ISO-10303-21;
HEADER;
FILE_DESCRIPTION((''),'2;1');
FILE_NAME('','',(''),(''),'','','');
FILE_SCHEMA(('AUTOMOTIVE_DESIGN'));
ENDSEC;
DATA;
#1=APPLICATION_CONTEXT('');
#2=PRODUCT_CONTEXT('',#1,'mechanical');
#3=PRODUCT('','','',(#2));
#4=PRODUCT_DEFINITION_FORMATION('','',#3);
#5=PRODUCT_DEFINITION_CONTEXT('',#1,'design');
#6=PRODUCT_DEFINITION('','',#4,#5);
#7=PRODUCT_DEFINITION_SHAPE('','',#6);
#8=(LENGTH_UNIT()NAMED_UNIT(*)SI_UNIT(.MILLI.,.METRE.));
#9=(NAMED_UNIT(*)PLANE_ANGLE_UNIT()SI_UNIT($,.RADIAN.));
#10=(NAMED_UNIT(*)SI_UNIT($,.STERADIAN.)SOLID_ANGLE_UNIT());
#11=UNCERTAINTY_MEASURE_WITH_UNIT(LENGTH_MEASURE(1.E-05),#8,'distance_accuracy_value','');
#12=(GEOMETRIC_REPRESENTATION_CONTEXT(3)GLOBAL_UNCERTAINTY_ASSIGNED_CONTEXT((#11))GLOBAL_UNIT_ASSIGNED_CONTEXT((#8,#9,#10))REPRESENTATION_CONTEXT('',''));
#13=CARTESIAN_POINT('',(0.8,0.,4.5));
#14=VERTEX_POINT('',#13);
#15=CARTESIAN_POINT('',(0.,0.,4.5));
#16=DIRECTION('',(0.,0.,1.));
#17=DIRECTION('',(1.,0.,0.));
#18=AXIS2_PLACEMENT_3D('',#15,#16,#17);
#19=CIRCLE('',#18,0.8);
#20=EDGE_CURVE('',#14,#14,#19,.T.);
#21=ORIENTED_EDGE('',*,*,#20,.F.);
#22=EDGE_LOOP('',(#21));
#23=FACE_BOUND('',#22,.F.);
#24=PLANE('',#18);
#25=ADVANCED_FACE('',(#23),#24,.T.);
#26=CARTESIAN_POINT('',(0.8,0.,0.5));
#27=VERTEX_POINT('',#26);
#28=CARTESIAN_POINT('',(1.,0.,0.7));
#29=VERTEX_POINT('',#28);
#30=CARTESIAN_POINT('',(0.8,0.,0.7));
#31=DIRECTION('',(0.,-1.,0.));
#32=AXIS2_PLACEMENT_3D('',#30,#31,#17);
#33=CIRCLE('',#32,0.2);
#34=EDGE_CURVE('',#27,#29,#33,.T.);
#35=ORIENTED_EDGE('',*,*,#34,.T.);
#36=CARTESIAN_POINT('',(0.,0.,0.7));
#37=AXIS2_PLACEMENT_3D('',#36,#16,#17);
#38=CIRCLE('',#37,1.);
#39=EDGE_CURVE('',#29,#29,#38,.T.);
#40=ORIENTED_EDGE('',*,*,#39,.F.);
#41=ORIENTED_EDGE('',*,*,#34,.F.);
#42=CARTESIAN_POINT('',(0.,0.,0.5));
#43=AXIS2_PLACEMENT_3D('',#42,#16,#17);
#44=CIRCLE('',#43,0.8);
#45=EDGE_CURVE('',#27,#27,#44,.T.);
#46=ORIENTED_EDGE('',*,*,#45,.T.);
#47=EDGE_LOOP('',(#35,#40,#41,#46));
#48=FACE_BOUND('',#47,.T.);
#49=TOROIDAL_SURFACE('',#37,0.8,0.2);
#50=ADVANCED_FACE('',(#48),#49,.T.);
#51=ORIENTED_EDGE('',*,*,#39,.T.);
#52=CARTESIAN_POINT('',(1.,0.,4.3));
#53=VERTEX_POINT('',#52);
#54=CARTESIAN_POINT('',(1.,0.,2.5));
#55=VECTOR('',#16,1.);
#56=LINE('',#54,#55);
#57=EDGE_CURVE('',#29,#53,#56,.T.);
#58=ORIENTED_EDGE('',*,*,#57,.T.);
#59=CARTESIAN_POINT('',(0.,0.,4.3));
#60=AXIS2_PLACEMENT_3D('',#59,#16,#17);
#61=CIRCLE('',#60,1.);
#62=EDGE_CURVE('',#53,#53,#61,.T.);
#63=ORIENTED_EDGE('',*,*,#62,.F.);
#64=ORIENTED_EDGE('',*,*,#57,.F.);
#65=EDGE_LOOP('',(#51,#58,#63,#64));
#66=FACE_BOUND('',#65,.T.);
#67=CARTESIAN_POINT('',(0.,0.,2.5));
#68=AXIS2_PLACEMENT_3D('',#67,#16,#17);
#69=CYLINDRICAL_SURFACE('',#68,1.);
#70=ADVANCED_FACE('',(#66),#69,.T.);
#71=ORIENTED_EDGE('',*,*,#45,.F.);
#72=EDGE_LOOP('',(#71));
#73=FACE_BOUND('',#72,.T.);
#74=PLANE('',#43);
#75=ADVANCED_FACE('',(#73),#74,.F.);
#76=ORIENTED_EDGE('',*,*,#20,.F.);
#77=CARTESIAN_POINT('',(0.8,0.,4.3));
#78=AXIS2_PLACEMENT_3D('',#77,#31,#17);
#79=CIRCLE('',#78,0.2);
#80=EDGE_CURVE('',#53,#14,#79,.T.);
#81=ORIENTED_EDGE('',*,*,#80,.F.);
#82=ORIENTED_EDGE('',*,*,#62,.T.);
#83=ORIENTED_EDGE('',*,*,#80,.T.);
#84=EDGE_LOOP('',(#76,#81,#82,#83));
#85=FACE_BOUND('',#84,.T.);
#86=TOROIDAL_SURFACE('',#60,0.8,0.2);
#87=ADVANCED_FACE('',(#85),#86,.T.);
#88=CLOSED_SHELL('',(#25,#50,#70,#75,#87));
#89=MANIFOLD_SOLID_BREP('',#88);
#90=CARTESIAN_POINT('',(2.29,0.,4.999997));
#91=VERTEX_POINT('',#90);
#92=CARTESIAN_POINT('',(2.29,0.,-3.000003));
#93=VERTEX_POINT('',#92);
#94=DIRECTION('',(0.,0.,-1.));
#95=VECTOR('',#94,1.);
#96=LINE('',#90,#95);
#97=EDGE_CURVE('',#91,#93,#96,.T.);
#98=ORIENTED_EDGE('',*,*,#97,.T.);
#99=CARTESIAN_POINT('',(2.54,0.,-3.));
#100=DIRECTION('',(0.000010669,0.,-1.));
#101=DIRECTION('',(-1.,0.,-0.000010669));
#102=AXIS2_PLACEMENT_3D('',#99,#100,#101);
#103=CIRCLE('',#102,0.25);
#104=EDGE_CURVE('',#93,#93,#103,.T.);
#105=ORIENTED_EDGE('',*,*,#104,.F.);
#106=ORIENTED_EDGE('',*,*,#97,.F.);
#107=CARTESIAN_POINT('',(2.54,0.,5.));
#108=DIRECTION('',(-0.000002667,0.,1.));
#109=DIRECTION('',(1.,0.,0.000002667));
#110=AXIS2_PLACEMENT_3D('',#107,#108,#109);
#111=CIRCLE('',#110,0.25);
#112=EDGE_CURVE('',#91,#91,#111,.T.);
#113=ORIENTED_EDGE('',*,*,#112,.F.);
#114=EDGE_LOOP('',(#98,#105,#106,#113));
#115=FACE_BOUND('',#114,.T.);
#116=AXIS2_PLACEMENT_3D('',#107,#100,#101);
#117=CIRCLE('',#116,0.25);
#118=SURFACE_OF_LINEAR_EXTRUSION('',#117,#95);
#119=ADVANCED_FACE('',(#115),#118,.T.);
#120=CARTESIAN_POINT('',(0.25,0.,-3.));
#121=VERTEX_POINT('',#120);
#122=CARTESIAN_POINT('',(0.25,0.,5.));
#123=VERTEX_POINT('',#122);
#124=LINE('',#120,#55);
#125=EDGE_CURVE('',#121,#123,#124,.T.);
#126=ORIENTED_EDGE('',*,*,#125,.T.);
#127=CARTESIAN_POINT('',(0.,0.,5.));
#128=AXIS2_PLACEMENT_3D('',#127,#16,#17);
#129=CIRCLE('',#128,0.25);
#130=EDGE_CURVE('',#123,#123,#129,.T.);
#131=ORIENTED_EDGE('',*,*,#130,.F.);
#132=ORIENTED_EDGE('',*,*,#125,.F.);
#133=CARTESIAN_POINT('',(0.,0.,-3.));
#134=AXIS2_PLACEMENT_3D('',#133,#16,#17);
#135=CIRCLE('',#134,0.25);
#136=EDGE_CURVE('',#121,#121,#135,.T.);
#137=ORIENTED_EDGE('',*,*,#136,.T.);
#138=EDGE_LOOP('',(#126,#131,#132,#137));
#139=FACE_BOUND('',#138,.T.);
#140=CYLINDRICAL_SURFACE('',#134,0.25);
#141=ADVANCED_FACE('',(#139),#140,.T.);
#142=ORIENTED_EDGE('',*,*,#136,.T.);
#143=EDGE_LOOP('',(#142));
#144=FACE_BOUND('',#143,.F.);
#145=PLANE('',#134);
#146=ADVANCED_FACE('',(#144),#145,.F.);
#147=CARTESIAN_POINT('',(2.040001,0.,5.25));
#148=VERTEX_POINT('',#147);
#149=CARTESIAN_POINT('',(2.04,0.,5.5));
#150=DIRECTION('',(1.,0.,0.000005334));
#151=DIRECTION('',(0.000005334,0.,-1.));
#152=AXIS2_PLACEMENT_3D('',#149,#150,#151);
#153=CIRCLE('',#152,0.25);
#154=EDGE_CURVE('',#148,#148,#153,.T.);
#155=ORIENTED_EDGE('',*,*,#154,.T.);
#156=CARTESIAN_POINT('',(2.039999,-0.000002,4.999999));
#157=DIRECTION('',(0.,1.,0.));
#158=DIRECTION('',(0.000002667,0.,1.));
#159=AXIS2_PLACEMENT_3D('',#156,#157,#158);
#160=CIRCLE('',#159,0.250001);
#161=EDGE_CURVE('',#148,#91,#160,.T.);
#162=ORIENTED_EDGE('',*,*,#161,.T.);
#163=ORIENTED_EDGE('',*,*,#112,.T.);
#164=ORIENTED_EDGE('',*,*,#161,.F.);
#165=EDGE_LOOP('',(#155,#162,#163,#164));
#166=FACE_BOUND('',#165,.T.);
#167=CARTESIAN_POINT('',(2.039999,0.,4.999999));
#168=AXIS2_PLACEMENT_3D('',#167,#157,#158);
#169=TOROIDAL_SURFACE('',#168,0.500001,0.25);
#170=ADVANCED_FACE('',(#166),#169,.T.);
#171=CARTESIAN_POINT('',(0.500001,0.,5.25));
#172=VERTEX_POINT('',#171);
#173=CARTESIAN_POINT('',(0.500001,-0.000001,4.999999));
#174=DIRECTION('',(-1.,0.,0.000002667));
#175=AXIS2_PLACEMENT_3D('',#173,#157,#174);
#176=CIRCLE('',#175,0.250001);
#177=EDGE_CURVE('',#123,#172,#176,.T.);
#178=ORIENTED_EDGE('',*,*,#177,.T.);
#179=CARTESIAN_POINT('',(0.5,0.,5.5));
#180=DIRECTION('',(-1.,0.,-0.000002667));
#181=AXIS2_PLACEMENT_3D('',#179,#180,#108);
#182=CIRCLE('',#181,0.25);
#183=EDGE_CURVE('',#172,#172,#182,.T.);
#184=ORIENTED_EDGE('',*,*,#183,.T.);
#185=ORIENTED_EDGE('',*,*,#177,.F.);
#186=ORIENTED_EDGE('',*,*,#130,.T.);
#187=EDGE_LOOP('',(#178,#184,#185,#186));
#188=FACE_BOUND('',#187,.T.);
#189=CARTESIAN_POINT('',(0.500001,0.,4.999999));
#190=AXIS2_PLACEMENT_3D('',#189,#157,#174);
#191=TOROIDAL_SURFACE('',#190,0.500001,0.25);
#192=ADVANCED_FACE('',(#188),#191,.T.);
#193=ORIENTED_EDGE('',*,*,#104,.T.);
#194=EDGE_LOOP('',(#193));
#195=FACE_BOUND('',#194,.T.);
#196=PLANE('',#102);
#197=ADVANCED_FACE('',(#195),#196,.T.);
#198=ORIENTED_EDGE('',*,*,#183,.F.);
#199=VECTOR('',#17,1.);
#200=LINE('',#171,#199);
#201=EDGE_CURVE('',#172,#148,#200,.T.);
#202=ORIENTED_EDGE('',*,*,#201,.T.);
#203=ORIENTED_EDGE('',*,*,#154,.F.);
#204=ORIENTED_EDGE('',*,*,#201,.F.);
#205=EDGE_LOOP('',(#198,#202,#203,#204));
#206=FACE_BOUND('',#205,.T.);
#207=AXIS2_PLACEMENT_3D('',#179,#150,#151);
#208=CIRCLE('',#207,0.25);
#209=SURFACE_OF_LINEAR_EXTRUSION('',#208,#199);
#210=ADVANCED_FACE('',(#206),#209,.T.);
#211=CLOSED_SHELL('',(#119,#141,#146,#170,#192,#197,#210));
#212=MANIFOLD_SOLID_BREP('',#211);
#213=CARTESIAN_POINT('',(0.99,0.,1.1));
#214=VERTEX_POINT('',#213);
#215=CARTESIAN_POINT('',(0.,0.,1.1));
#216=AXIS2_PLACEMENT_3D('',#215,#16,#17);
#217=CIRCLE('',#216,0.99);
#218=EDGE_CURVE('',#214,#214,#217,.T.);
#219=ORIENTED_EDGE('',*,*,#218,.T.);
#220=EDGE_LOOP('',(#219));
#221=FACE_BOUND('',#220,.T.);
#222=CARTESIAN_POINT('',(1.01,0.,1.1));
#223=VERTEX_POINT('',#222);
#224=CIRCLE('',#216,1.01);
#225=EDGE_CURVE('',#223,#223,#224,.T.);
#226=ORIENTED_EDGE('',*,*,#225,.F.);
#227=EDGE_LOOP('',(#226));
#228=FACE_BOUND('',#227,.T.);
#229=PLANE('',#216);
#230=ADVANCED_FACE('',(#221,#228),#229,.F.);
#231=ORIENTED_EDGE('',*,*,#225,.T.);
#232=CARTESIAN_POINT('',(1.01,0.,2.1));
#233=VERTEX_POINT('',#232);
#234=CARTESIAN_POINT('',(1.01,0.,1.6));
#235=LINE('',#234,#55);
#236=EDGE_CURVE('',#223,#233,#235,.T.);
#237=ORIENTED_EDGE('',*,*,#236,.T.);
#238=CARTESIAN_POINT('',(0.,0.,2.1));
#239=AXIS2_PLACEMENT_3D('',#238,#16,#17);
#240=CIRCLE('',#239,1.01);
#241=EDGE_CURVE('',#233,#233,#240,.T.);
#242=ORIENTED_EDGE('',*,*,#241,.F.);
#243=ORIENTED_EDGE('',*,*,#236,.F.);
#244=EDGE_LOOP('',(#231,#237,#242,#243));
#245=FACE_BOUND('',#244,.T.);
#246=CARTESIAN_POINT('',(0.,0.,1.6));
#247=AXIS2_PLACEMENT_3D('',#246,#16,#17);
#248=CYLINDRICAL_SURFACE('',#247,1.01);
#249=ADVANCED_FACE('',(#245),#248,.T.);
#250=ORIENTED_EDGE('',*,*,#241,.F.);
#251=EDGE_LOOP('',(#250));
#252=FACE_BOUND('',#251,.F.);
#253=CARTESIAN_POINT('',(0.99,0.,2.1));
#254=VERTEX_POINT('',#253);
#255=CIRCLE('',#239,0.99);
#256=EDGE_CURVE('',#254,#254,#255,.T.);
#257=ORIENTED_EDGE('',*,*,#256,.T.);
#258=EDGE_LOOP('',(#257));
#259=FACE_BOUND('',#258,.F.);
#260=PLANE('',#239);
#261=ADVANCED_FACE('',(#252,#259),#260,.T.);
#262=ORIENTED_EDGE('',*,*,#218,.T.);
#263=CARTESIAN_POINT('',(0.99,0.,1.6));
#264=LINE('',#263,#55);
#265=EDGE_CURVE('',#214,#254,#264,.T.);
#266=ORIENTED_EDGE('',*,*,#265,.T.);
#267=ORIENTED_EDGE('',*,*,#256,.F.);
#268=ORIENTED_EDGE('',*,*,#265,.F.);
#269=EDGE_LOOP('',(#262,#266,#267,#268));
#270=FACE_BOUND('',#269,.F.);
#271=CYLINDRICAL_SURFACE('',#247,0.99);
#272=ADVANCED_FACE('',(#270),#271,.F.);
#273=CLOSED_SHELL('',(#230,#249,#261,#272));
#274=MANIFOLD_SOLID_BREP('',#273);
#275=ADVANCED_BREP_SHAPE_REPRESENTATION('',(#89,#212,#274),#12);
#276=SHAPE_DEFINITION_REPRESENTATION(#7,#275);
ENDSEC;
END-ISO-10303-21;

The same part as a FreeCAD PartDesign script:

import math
import FreeCAD as App
import Part
import Sketcher

V = App.Vector
Q = App.Units.Quantity


def edges_at(feature, points):
    """Names of the edges that pass closest to the given points."""
    edges = feature.Shape.Edges
    near = lambda p: min(range(len(edges)), key=lambda i: edges[i].distToShape(Part.Vertex(*p))[0])
    return sorted({f"Edge{near(p) + 1}" for p in points})

doc = App.newDocument("Part")
params = doc.addObject("Spreadsheet::Sheet", "Params")
for row, (alias, value) in enumerate([
    ("sketch1_diameter", "0.5 mm"),
    ("sketch2_radius", "0.500001 mm"),
    ("sketch2_height", "8 mm"),
    ("sketch2_width", "1.54 mm"),
    ("sketch3_height", "1 mm"),
    ("sketch3_width", "0.02 mm"),
    ("revolution_angle", "360 deg"),
    ("sketch4_width", "1 mm"),
    ("sketch4_height", "4 mm"),
    ("revolution2_angle", "360 deg"),
    ("fillet_radius", "0.2 mm"),
], start=1):
    params.set(f"A{row}", alias)
    params.set(f"B{row}", "=" + value)
    params.setAlias(f"B{row}", alias)

body = doc.addObject("PartDesign::Body", "Body")

# Sketch on XY plane
sketch1 = doc.addObject("Sketcher::SketchObject", "Sketch")
body.addObject(sketch1)
sketch1.AttachmentSupport = (doc.XY_Plane, [""])
sketch1.MapMode = "FlatFace"
sketch1.addGeometry(Part.Circle(V(0, 0, 0), V(0, 0, 1), 0.25), False)
sketch1.addConstraint(Sketcher.Constraint("Coincident", 0, 3, -1, 1))
sketch1.addConstraint(Sketcher.Constraint("Diameter", 0, Q("0.5 mm")))
sketch1.setExpression("Constraints[1]", "Params.sketch1_diameter")

# Sketch on XZ plane
sketch2 = doc.addObject("Sketcher::SketchObject", "Sketch001")
body.addObject(sketch2)
sketch2.AttachmentSupport = (doc.XZ_Plane, [""])
sketch2.MapMode = "FlatFace"
sketch2.addGeometry(Part.LineSegment(V(0, -3, 0), V(0, 5, 0)), False)
sketch2.addGeometry(Part.ArcOfCircle(Part.Circle(V(0.500001, 4.999999, 0), V(0, 0, 1), 0.500001), math.radians(90.000153), math.radians(179.999847)), False)
sketch2.addGeometry(Part.LineSegment(V(0.5, 5.5, 0), V(2.04, 5.5, 0)), False)
sketch2.addGeometry(Part.ArcOfCircle(Part.Circle(V(2.039999, 4.999999, 0), V(0, 0, 1), 0.500001), math.radians(0.000153), math.radians(89.999847)), False)
sketch2.addGeometry(Part.LineSegment(V(2.54, 5, 0), V(2.54, -3, 0)), False)
sketch2.addConstraint(Sketcher.Constraint("Coincident", 0, 2, 1, 2))
sketch2.addConstraint(Sketcher.Constraint("Coincident", 1, 1, 2, 1))
sketch2.addConstraint(Sketcher.Constraint("Coincident", 2, 2, 3, 2))
sketch2.addConstraint(Sketcher.Constraint("Coincident", 3, 1, 4, 1))
sketch2.addConstraint(Sketcher.Constraint("Vertical", 0))
sketch2.addConstraint(Sketcher.Constraint("Horizontal", 2))
sketch2.addConstraint(Sketcher.Constraint("Vertical", 4))
sketch2.addConstraint(Sketcher.Constraint("Equal", 1, 3))
sketch2.addConstraint(Sketcher.Constraint("PointOnObject", 0, 1, -2))
sketch2.addConstraint(Sketcher.Constraint("Horizontal", 3, 3, 0, 2))
sketch2.addConstraint(Sketcher.Constraint("Horizontal", 0, 2, 3, 1))
sketch2.addConstraint(Sketcher.Constraint("Horizontal", 0, 1, 4, 2))
sketch2.addConstraint(Sketcher.Constraint("Vertical", 3, 3, 2, 2))
sketch2.addConstraint(Sketcher.Constraint("Radius", 1, Q("0.500001 mm")))
sketch2.addConstraint(Sketcher.Constraint("DistanceY", 0, 1, 0, 2, Q("8 mm")))
sketch2.addConstraint(Sketcher.Constraint("DistanceY", -1, 1, 1, 3, Q("4.999999 mm")))
sketch2.addConstraint(Sketcher.Constraint("DistanceX", 2, 1, 2, 2, Q("1.54 mm")))
sketch2.addConstraint(Sketcher.Constraint("DistanceX", -1, 1, 1, 1, Q("0.5 mm")))
sketch2.setExpression("Constraints[13]", "Params.sketch2_radius")
sketch2.setExpression("Constraints[14]", "Params.sketch2_height")
sketch2.setExpression("Constraints[16]", "Params.sketch2_width")
doc.recompute()

additivepipe = doc.addObject("PartDesign::AdditivePipe", "AdditivePipe")
body.addObject(additivepipe)
additivepipe.Profile = sketch1
additivepipe.Spine = (sketch2, ["Edge1", "Edge2", "Edge3", "Edge4", "Edge5"])
body2 = doc.addObject("PartDesign::Body", "Body001")

# Sketch on XZ plane
sketch3 = doc.addObject("Sketcher::SketchObject", "Sketch002")
body2.addObject(sketch3)
sketch3.AttachmentSupport = (doc.getObject("XZ_Plane001"), [""])
sketch3.MapMode = "FlatFace"
sketch3.addGeometry(Part.LineSegment(V(0.99, 2.1, 0), V(0.99, 1.1, 0)), False)
sketch3.addGeometry(Part.LineSegment(V(0.99, 1.1, 0), V(1.01, 1.1, 0)), False)
sketch3.addGeometry(Part.LineSegment(V(1.01, 1.1, 0), V(1.01, 2.1, 0)), False)
sketch3.addGeometry(Part.LineSegment(V(1.01, 2.1, 0), V(0.99, 2.1, 0)), False)
sketch3.addConstraint(Sketcher.Constraint("Coincident", 0, 2, 1, 1))
sketch3.addConstraint(Sketcher.Constraint("Coincident", 1, 2, 2, 1))
sketch3.addConstraint(Sketcher.Constraint("Coincident", 2, 2, 3, 1))
sketch3.addConstraint(Sketcher.Constraint("Coincident", 3, 2, 0, 1))
sketch3.addConstraint(Sketcher.Constraint("Vertical", 0))
sketch3.addConstraint(Sketcher.Constraint("Horizontal", 1))
sketch3.addConstraint(Sketcher.Constraint("Vertical", 2))
sketch3.addConstraint(Sketcher.Constraint("Horizontal", 3))
sketch3.addConstraint(Sketcher.Constraint("DistanceY", 0, 2, 0, 1, Q("1 mm")))
sketch3.addConstraint(Sketcher.Constraint("DistanceX", 1, 1, 1, 2, Q("0.02 mm")))
sketch3.addConstraint(Sketcher.Constraint("DistanceY", -1, 1, 0, 2, Q("1.1 mm")))
sketch3.addConstraint(Sketcher.Constraint("DistanceX", -1, 1, 0, 2, Q("0.99 mm")))
sketch3.setExpression("Constraints[8]", "Params.sketch3_height")
sketch3.setExpression("Constraints[9]", "Params.sketch3_width")
revolution = doc.addObject("PartDesign::Revolution", "Revolution")
body2.addObject(revolution)
revolution.Profile = sketch3
revolution.ReferenceAxis = (sketch3, ["V_Axis"])
revolution.setExpression("Angle", "Params.revolution_angle")
body3 = doc.addObject("PartDesign::Body", "Body002")

# Sketch on XZ plane
sketch4 = doc.addObject("Sketcher::SketchObject", "Sketch003")
body3.addObject(sketch4)
sketch4.AttachmentSupport = (doc.getObject("XZ_Plane002"), [""])
sketch4.MapMode = "FlatFace"
sketch4.addGeometry(Part.LineSegment(V(0, 4.5, 0), V(0, 0.5, 0)), False)
sketch4.addGeometry(Part.LineSegment(V(0, 0.5, 0), V(1, 0.5, 0)), False)
sketch4.addGeometry(Part.LineSegment(V(1, 0.5, 0), V(1, 4.5, 0)), False)
sketch4.addGeometry(Part.LineSegment(V(1, 4.5, 0), V(0, 4.5, 0)), False)
sketch4.addConstraint(Sketcher.Constraint("Coincident", 0, 2, 1, 1))
sketch4.addConstraint(Sketcher.Constraint("Coincident", 1, 2, 2, 1))
sketch4.addConstraint(Sketcher.Constraint("Coincident", 2, 2, 3, 1))
sketch4.addConstraint(Sketcher.Constraint("Coincident", 3, 2, 0, 1))
sketch4.addConstraint(Sketcher.Constraint("Vertical", 0))
sketch4.addConstraint(Sketcher.Constraint("Horizontal", 1))
sketch4.addConstraint(Sketcher.Constraint("Vertical", 2))
sketch4.addConstraint(Sketcher.Constraint("Horizontal", 3))
sketch4.addConstraint(Sketcher.Constraint("PointOnObject", 0, 2, -2))
sketch4.addConstraint(Sketcher.Constraint("DistanceX", 1, 1, 1, 2, Q("1 mm")))
sketch4.addConstraint(Sketcher.Constraint("DistanceY", 0, 2, 0, 1, Q("4 mm")))
sketch4.addConstraint(Sketcher.Constraint("DistanceY", -1, 1, 0, 2, Q("0.5 mm")))
sketch4.setExpression("Constraints[9]", "Params.sketch4_width")
sketch4.setExpression("Constraints[10]", "Params.sketch4_height")
revolution2 = doc.addObject("PartDesign::Revolution", "Revolution001")
body3.addObject(revolution2)
revolution2.Profile = sketch4
revolution2.ReferenceAxis = (sketch4, ["V_Axis"])
revolution2.setExpression("Angle", "Params.revolution2_angle")
doc.recompute()

fillet = doc.addObject("PartDesign::Fillet", "Fillet")
body3.addObject(fillet)
fillet.Base = (revolution2, edges_at(revolution2, [(-1, 0, 4.5), (-1, 0, 0.5)]))
fillet.setExpression("Radius", "Params.fillet_radius")

doc.recompute()
